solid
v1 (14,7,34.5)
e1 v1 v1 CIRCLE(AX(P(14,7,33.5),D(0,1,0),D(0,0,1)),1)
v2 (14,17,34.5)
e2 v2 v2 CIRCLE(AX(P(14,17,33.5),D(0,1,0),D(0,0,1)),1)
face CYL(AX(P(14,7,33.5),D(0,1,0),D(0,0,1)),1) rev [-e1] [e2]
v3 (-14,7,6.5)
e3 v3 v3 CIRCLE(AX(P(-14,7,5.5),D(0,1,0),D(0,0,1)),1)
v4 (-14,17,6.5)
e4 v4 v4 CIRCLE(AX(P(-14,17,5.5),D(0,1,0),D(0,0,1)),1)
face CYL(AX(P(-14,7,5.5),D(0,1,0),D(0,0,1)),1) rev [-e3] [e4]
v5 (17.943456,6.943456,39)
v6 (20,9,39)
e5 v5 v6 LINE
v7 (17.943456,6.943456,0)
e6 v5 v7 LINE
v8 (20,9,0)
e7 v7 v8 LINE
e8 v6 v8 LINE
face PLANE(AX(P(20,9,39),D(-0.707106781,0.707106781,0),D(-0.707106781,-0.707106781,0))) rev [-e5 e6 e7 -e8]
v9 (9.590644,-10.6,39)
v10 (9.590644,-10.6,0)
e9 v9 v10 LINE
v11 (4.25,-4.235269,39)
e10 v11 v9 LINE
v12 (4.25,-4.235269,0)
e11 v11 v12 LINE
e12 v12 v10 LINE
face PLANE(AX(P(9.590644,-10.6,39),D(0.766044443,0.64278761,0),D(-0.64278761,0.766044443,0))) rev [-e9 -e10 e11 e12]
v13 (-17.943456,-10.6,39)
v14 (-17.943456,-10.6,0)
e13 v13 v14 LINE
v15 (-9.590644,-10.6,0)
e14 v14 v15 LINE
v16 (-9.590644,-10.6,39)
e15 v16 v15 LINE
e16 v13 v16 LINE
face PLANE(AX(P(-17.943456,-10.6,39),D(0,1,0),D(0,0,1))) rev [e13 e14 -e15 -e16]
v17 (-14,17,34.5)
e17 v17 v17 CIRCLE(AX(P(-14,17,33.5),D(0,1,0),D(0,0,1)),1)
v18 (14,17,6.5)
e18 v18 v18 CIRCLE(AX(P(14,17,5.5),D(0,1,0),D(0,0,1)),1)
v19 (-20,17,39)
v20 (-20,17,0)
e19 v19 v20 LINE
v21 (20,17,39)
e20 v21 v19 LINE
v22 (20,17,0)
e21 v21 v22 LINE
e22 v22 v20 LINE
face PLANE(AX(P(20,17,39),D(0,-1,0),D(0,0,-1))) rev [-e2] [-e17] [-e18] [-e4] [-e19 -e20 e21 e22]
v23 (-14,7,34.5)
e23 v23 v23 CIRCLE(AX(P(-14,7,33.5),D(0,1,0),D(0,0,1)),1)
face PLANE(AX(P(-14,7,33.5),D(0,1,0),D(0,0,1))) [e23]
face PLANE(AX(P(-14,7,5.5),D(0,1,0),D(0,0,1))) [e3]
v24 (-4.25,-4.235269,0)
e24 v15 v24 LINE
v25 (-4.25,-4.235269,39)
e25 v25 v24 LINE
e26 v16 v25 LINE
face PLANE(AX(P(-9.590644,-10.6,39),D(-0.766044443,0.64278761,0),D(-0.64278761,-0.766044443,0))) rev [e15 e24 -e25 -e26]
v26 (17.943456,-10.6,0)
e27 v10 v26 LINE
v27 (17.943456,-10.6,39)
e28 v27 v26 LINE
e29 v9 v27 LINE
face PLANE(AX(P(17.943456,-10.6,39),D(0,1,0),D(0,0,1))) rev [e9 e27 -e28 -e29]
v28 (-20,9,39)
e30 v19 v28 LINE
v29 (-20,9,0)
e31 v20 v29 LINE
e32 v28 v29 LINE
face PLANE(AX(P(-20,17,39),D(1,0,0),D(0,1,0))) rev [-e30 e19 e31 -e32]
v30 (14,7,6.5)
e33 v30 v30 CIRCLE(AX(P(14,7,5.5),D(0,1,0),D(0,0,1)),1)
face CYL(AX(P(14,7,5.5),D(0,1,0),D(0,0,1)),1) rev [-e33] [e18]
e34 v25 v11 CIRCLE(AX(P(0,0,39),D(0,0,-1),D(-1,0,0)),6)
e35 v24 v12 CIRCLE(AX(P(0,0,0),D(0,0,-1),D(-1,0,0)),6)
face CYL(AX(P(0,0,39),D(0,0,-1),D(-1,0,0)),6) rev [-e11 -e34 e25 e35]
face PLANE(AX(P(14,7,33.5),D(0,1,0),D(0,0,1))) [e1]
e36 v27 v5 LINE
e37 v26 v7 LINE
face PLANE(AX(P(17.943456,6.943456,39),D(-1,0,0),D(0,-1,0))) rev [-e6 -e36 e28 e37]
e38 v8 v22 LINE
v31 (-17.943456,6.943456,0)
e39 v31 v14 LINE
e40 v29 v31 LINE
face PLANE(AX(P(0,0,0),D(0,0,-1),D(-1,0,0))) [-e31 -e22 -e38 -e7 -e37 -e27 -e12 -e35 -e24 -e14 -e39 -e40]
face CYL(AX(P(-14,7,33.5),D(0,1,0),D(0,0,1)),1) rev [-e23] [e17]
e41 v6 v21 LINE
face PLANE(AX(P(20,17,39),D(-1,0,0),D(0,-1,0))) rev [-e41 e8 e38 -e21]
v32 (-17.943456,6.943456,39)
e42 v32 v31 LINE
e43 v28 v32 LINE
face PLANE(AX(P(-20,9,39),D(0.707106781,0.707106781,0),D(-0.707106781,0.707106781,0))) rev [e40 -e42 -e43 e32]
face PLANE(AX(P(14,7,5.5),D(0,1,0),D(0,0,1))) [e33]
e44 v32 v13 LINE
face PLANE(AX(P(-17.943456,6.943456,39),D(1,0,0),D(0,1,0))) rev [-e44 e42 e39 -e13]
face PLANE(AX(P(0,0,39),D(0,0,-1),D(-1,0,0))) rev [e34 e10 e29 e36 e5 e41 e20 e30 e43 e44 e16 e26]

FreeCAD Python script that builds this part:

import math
import FreeCAD as App
import Part
import Sketcher

V = App.Vector
Q = App.Units.Quantity

doc = App.newDocument("Part")
body = doc.addObject("PartDesign::Body", "Body")

# Sketch on XY plane
sketch1 = doc.addObject("Sketcher::SketchObject", "Sketch")
body.addObject(sketch1)
sketch1.AttachmentSupport = (doc.XY_Plane, [""])
sketch1.MapMode = "FlatFace"
sketch1.addGeometry([
    Part.LineSegment(V(20, 17, 0), V(-20, 17, 0)),  # 0
    Part.LineSegment(V(-20, 17, 0), V(-20, 9, 0)),  # 1
    Part.LineSegment(V(-20, 9, 0), V(-17.9, 6.9, 0)),  # 2
    Part.LineSegment(V(-17.9, 6.9, 0), V(-17.9, -10.6, 0)),  # 3
    Part.LineSegment(V(-17.9, -10.6, 0), V(-9.6, -10.6, 0)),  # 4
    Part.LineSegment(V(-9.6, -10.6, 0), V(-4.2, -4.2, 0)),  # 5
    Part.ArcOfCircle(Part.Circle(V(0, 0, 0), V(0, 0, 1), 6), math.radians(-45), math.radians(225)),  # 6
    Part.LineSegment(V(4.2, -4.2, 0), V(9.6, -10.6, 0)),  # 7
    Part.LineSegment(V(9.6, -10.6, 0), V(17.9, -10.6, 0)),  # 8
    Part.LineSegment(V(17.9, -10.6, 0), V(17.9, 6.9, 0)),  # 9
    Part.LineSegment(V(17.9, 6.9, 0), V(20, 9, 0)),  # 10
    Part.LineSegment(V(20, 9, 0), V(20, 17, 0)),  # 11
], False)
sketch1.addConstraint([
    Sketcher.Constraint("Coincident", 0, 2, 1, 1),
    Sketcher.Constraint("Coincident", 1, 2, 2, 1),
    Sketcher.Constraint("Coincident", 2, 2, 3, 1),
    Sketcher.Constraint("Coincident", 3, 2, 4, 1),
    Sketcher.Constraint("Coincident", 4, 2, 5, 1),
    Sketcher.Constraint("Coincident", 5, 2, 6, 2),
    Sketcher.Constraint("Coincident", 6, 1, 7, 1),
    Sketcher.Constraint("Coincident", 7, 2, 8, 1),
    Sketcher.Constraint("Coincident", 8, 2, 9, 1),
    Sketcher.Constraint("Coincident", 9, 2, 10, 1),
    Sketcher.Constraint("Coincident", 10, 2, 11, 1),
    Sketcher.Constraint("Coincident", 11, 2, 0, 1),
    Sketcher.Constraint("Horizontal", 0),
    Sketcher.Constraint("Vertical", 1),
    Sketcher.Constraint("Vertical", 3),
    Sketcher.Constraint("Horizontal", 4),
    Sketcher.Constraint("Horizontal", 8),
    Sketcher.Constraint("Vertical", 9),
    Sketcher.Constraint("Vertical", 11),
    Sketcher.Constraint("Coincident", 6, 3, -1, 1),
    Sketcher.Constraint("Symmetric", 4, 2, 7, 2, -2),
    Sketcher.Constraint("Symmetric", 2, 2, 9, 2, -2),
    Sketcher.Constraint("Symmetric", 1, 2, 10, 2, -2),
    Sketcher.Constraint("Perpendicular", 2, 10),
    Sketcher.Constraint("Horizontal", 5, 2, 6, 1),
    Sketcher.Constraint("Radius", 6, Q("6 mm")),
    Sketcher.Constraint("DistanceX", 0, 2, 0, 1, Q("40 mm")),
    Sketcher.Constraint("DistanceY", 1, 2, 1, 1, Q("8 mm")),
    Sketcher.Constraint("Angle", 5, Q("50 deg")),
    Sketcher.Constraint("DistanceY", -1, 1, 0, 2, Q("17 mm")),
    Sketcher.Constraint("DistanceY", 3, 2, -1, 1, Q("10.6 mm")),
    Sketcher.Constraint("DistanceX", 5, 2, 6, 1, Q("8.5 mm")),
    Sketcher.Constraint("DistanceX", 3, 2, 7, 2, Q("27.5341 mm")),
])
pad1 = doc.addObject("PartDesign::Pad", "Pad")
body.addObject(pad1)
pad1.Profile = sketch1
pad1.Length = 39

# Sketch on XZ plane
sketch2 = doc.addObject("Sketcher::SketchObject", "Sketch001")
body.addObject(sketch2)
sketch2.AttachmentSupport = (doc.XZ_Plane, [""])
sketch2.MapMode = "FlatFace"
sketch2.AttachmentOffset = App.Placement(V(0, 0, -17), App.Rotation())
sketch2.addGeometry([
    Part.Circle(V(-14, 33.5, 0), V(0, 0, 1), 1),
    Part.Circle(V(14, 33.5, 0), V(0, 0, 1), 1),
    Part.Circle(V(-14, 5.5, 0), V(0, 0, 1), 1),
    Part.Circle(V(14, 5.5, 0), V(0, 0, 1), 1),
], False)
sketch2.addConstraint([
    Sketcher.Constraint("Equal", 0, 1),
    Sketcher.Constraint("Equal", 1, 2),
    Sketcher.Constraint("Equal", 2, 3),
    Sketcher.Constraint("Symmetric", 0, 3, 1, 3, -2),
    Sketcher.Constraint("Symmetric", 2, 3, 3, 3, -2),
    Sketcher.Constraint("Vertical", 0, 3, 2, 3),
    Sketcher.Constraint("Diameter", 0, Q("2 mm")),
    Sketcher.Constraint("DistanceX", 0, 3, -1, 1, Q("14 mm")),
    Sketcher.Constraint("DistanceY", 2, 3, 0, 3, Q("28 mm")),
    Sketcher.Constraint("DistanceY", -1, 1, 0, 3, Q("33.5 mm")),
])
pocket1 = doc.addObject("PartDesign::Pocket", "Pocket")
body.addObject(pocket1)
pocket1.Profile = sketch2
pocket1.Length = 10
pocket1.Reversed = True

doc.recompute()
